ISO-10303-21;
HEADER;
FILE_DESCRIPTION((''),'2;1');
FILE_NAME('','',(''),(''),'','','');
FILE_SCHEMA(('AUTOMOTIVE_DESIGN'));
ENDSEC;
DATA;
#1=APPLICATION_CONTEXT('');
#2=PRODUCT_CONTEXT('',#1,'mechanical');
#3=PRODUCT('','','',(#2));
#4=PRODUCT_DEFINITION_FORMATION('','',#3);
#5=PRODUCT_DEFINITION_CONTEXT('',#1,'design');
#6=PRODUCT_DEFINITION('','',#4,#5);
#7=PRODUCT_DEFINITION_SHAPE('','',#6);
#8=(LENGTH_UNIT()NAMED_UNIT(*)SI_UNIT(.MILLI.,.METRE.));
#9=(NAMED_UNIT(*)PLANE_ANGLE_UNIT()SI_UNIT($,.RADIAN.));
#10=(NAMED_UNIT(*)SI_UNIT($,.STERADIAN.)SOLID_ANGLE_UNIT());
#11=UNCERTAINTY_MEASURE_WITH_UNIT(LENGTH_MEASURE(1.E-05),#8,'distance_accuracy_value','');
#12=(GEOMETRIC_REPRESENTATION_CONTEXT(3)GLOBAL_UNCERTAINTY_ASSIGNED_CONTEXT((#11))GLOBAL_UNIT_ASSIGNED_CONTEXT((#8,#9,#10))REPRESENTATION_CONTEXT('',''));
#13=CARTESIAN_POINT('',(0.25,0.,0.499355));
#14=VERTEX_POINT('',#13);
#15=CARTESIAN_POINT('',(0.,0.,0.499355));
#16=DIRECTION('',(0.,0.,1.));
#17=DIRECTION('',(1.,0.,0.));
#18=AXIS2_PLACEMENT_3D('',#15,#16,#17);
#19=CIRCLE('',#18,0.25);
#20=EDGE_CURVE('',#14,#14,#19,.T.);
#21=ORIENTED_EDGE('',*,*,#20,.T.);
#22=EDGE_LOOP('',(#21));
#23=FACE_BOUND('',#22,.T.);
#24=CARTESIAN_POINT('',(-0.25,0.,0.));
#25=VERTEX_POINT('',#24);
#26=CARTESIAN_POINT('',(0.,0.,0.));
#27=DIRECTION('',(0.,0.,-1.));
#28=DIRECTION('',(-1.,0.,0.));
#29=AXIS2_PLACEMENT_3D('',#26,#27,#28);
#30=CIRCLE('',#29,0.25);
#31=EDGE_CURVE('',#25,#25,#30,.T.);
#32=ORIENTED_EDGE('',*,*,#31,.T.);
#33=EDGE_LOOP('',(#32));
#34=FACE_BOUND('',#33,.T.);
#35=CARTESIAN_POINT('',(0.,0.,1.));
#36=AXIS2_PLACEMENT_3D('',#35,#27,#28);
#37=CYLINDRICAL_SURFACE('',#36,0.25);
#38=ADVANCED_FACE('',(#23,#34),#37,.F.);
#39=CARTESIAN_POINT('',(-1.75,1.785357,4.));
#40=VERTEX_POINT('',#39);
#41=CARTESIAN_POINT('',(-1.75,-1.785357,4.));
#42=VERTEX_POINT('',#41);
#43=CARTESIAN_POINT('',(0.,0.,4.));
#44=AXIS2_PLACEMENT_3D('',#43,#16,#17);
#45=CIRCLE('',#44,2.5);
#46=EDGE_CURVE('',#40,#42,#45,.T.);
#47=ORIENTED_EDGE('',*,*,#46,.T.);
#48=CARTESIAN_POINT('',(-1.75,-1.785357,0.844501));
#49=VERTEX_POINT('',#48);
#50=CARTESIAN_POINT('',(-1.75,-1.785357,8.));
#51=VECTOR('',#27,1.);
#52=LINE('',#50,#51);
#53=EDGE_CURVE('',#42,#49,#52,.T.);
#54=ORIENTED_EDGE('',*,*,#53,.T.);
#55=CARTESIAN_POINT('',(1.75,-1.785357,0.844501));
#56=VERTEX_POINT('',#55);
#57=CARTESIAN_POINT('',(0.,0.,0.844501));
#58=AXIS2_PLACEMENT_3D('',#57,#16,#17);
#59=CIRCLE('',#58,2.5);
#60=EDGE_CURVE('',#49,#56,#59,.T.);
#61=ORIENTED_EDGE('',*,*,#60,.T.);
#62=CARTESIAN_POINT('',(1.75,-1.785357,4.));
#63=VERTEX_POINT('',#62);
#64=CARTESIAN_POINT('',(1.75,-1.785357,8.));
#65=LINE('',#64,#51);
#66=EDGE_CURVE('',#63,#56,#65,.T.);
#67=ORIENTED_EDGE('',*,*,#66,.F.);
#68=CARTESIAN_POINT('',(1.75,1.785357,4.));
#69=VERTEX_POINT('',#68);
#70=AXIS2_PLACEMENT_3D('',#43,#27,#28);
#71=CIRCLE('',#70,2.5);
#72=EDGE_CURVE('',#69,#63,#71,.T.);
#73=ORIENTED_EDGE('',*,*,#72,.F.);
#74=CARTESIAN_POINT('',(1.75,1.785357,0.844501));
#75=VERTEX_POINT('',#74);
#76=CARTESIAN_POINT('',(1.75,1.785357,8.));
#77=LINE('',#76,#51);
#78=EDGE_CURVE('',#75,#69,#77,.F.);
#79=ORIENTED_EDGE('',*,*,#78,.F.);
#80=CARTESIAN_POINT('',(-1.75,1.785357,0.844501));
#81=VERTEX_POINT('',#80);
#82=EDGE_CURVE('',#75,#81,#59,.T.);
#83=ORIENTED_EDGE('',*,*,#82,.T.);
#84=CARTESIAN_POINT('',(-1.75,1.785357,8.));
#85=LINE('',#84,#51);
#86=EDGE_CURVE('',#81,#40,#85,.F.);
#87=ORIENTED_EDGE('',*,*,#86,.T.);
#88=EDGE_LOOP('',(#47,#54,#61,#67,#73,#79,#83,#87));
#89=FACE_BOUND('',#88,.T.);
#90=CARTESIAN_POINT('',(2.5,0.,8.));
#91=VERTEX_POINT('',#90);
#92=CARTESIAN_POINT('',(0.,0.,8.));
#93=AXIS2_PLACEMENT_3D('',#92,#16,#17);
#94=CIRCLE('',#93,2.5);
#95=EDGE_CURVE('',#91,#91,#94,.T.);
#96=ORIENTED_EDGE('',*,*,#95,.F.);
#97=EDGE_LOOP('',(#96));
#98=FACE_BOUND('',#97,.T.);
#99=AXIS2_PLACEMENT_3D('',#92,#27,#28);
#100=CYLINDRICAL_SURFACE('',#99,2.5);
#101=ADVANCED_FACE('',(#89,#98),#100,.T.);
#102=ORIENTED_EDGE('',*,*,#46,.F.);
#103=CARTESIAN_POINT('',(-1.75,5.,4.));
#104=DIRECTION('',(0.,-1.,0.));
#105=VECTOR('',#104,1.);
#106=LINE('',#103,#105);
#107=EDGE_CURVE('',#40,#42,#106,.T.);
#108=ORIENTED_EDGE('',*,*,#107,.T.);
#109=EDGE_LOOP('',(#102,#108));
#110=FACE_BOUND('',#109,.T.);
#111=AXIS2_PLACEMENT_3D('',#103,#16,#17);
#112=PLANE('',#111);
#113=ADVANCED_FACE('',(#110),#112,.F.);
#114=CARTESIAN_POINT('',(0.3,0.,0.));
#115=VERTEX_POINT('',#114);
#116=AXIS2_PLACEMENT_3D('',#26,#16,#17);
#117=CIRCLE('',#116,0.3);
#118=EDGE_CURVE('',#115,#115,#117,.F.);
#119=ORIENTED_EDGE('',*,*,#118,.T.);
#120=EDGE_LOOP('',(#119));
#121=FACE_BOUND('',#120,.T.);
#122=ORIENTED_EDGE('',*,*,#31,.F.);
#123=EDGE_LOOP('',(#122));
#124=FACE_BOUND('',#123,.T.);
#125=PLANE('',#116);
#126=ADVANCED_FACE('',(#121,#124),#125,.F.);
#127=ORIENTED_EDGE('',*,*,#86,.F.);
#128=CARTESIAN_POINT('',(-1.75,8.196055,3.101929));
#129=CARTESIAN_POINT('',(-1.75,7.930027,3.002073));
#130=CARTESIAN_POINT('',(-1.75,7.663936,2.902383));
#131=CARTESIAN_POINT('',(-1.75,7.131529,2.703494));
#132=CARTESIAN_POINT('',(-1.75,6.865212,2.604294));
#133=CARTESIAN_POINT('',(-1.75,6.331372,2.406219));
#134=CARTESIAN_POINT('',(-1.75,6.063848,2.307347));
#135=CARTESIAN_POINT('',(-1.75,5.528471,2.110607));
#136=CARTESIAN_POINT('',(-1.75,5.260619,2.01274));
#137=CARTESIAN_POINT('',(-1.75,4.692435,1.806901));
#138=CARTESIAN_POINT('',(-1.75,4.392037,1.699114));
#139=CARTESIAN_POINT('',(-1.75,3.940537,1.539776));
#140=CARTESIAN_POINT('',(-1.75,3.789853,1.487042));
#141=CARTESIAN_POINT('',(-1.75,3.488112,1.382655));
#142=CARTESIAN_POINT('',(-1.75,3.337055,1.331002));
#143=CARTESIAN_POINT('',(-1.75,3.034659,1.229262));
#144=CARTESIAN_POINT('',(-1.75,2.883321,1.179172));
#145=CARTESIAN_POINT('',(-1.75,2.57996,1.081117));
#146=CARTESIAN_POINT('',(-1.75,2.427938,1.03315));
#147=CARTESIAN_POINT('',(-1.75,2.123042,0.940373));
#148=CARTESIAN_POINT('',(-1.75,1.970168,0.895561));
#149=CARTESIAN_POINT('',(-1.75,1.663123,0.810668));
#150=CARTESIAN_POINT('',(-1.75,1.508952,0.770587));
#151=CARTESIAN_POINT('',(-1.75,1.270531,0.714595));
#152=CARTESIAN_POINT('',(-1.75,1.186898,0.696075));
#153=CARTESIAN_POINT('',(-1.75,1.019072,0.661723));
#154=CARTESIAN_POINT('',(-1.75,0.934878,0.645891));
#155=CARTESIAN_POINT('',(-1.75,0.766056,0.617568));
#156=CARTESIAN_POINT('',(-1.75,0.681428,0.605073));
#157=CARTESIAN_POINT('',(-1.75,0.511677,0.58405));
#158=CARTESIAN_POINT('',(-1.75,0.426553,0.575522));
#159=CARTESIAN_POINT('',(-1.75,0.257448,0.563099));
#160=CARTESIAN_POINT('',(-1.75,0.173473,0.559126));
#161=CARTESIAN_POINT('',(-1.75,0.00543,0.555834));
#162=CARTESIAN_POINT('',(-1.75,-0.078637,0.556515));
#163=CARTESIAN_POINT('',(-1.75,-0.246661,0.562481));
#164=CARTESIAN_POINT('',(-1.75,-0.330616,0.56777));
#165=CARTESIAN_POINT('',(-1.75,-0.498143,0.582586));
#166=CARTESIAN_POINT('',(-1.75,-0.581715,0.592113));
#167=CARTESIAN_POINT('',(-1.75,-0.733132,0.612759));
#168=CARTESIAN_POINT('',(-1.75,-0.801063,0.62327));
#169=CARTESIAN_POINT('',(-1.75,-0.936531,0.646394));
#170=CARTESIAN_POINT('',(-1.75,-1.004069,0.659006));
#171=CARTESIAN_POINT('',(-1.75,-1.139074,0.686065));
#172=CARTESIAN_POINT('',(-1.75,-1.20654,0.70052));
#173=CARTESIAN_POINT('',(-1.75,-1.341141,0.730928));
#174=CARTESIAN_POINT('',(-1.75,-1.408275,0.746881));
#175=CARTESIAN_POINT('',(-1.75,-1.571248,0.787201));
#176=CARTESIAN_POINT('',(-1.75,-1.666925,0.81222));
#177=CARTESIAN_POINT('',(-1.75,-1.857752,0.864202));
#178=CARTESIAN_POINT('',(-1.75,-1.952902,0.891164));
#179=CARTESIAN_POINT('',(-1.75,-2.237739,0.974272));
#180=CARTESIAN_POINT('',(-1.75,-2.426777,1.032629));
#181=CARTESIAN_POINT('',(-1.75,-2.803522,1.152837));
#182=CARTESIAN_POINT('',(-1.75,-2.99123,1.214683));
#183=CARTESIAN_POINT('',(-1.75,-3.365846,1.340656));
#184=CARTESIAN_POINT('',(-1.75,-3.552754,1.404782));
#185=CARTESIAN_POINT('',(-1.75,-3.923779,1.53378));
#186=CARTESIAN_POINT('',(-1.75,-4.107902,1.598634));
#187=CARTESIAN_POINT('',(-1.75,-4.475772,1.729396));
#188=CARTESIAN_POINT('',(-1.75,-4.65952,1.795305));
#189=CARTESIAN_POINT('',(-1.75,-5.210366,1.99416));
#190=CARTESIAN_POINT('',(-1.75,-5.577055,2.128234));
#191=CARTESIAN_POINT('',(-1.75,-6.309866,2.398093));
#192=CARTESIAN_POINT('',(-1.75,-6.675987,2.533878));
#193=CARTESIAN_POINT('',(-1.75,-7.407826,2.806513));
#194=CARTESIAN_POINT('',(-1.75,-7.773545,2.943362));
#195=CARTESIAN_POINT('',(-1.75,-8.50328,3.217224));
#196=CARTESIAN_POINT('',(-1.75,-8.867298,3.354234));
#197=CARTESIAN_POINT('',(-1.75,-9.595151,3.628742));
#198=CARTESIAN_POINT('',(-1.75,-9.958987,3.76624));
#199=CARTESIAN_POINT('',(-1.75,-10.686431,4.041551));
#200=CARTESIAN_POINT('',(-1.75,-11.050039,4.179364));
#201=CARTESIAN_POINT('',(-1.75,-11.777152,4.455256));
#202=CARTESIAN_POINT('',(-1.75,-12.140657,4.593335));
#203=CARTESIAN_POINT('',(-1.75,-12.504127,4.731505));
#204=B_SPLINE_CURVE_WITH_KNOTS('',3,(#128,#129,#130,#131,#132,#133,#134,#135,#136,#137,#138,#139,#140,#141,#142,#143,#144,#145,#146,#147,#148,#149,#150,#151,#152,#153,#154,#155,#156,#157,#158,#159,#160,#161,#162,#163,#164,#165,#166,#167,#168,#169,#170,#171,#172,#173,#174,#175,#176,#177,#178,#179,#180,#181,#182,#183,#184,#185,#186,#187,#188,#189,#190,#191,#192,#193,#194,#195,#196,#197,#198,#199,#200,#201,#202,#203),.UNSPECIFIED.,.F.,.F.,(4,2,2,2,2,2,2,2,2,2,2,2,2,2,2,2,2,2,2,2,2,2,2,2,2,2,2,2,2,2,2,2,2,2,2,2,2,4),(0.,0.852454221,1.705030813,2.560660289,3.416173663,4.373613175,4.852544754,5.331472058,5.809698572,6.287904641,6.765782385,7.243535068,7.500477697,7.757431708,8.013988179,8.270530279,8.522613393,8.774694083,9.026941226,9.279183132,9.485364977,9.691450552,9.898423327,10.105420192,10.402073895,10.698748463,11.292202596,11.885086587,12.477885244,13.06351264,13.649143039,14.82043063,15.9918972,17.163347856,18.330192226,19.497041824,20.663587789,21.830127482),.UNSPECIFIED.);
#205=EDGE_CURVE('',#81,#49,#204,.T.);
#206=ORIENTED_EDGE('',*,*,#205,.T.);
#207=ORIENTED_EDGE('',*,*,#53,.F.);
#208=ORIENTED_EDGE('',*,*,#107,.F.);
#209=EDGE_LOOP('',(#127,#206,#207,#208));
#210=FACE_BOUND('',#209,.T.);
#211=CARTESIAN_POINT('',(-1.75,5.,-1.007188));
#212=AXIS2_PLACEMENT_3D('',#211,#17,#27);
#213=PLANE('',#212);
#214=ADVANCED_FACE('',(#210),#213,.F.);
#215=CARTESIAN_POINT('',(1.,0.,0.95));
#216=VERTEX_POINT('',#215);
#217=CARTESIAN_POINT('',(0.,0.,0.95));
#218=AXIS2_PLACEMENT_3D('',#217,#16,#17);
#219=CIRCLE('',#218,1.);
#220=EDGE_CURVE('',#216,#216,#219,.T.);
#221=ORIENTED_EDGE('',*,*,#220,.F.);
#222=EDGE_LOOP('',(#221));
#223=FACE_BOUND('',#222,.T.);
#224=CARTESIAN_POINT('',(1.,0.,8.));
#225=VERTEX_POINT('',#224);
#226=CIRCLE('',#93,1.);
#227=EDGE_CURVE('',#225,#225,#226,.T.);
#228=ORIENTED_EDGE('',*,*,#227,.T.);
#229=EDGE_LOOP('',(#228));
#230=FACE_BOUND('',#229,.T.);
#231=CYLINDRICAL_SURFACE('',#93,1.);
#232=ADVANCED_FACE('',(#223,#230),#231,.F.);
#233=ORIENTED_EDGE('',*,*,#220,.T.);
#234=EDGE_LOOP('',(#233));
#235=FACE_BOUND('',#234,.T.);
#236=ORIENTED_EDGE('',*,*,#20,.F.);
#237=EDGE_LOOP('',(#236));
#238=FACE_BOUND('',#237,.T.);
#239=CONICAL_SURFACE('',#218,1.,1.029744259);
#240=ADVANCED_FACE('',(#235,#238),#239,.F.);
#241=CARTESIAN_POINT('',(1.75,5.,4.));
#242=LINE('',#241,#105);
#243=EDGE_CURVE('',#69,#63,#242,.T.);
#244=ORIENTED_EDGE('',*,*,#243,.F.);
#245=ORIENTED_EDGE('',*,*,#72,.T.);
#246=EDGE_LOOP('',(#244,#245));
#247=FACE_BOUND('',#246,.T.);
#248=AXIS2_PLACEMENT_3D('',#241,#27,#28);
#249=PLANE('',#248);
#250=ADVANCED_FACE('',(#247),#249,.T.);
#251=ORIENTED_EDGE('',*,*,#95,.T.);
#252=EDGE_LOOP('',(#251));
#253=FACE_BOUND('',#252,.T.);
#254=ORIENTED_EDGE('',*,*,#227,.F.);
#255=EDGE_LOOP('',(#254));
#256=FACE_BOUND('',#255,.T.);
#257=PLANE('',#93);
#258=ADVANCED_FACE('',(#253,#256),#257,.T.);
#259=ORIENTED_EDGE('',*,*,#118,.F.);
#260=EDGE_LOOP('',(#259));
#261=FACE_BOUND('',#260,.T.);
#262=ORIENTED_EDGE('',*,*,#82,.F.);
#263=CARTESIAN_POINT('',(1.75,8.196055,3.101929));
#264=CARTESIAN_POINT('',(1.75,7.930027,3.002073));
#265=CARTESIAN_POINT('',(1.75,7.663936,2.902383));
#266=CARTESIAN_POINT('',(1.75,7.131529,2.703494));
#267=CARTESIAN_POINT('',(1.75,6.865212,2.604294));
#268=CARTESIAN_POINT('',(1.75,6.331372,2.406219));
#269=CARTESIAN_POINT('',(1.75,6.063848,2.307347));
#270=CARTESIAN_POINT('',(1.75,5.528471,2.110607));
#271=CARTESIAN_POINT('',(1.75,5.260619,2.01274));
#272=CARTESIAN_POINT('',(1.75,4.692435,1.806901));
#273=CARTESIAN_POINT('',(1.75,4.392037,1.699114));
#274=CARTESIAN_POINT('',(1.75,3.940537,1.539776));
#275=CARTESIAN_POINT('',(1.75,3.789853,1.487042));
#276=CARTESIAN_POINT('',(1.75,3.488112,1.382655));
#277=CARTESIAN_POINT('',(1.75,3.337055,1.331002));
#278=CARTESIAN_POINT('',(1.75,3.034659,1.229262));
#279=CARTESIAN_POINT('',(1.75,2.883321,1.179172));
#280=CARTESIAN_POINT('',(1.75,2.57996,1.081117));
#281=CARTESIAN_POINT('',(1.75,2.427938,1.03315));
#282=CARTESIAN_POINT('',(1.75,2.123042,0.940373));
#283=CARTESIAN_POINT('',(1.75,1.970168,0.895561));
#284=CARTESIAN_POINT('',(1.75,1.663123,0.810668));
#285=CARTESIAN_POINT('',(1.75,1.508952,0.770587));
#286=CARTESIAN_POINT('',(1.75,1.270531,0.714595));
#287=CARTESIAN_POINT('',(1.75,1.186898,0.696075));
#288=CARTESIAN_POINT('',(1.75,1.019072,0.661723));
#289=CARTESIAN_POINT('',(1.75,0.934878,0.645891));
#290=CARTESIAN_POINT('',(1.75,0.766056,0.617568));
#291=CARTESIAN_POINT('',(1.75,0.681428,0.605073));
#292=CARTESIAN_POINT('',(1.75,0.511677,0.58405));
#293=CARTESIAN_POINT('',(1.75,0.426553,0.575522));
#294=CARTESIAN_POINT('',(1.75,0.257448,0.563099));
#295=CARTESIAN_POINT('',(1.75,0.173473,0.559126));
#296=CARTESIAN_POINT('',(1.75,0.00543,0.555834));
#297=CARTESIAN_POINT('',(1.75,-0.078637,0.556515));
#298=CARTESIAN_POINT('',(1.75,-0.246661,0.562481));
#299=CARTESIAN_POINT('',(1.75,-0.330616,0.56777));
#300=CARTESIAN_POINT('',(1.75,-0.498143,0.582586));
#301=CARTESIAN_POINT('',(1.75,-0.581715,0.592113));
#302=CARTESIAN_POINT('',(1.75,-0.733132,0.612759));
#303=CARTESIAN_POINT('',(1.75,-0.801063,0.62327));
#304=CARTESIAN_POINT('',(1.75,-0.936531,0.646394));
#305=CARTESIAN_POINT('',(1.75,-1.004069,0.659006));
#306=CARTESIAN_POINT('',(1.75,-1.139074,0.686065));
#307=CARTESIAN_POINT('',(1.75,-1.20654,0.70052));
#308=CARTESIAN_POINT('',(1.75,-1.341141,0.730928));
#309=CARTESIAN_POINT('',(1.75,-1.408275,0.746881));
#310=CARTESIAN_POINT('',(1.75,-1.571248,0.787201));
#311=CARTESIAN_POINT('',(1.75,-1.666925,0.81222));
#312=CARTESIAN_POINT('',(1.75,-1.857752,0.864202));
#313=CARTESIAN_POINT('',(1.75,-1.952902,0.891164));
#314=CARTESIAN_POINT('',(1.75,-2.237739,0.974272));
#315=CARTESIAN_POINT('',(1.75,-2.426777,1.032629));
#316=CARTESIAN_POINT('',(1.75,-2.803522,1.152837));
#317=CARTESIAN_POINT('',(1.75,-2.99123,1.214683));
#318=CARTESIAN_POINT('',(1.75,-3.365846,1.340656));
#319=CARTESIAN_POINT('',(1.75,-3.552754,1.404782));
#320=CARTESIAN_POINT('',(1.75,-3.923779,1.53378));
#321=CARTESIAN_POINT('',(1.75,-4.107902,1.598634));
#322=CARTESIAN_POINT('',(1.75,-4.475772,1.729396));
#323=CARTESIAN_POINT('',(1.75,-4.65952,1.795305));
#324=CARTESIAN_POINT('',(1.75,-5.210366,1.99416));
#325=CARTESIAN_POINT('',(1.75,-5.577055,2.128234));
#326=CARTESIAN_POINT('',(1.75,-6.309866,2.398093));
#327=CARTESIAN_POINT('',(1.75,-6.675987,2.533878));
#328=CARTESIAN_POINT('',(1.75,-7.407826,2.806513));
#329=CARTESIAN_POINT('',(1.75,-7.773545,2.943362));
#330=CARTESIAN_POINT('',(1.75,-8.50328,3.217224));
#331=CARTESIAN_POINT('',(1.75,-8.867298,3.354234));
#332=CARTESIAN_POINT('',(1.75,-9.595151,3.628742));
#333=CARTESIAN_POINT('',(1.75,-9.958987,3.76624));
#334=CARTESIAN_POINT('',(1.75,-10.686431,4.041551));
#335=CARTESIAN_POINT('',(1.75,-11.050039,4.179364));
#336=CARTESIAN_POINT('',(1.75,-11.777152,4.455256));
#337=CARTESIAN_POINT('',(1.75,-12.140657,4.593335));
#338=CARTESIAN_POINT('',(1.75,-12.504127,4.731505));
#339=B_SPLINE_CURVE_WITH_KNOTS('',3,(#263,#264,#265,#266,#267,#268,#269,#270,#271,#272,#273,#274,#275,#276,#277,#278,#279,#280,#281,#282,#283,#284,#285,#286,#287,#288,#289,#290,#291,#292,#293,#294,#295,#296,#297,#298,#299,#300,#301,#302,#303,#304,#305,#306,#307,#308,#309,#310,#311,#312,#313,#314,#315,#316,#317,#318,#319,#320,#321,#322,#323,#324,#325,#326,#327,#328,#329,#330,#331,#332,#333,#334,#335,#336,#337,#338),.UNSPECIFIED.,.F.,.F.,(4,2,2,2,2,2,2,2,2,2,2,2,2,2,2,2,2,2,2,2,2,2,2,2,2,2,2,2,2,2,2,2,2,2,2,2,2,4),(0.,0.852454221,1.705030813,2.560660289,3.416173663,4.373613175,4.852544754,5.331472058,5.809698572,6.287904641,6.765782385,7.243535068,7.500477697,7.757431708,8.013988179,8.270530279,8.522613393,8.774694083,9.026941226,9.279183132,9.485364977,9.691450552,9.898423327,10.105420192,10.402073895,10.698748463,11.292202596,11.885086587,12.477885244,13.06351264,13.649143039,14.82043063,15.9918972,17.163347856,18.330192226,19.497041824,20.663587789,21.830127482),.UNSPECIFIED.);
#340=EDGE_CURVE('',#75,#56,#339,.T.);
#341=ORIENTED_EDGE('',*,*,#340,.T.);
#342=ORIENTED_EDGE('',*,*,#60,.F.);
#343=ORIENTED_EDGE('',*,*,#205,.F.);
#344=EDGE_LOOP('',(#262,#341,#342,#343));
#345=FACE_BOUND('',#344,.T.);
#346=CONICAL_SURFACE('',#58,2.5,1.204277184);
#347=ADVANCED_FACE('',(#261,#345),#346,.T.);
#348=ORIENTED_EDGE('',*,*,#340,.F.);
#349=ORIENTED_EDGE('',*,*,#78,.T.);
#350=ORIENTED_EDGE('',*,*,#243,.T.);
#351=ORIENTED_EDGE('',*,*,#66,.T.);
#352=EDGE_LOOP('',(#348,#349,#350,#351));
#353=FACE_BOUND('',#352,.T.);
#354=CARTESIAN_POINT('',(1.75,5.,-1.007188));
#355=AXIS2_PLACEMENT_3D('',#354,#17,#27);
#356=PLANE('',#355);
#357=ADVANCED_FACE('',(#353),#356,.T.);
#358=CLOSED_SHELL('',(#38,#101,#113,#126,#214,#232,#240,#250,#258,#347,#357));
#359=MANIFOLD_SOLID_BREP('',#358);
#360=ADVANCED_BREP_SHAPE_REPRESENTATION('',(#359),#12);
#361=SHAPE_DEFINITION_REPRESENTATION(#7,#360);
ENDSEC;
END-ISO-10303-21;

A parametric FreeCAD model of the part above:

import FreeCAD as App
import Part
import Sketcher


def edges_at(feature, points):
    """Names of the edges that pass closest to the given points."""
    edges = feature.Shape.Edges
    near = lambda p: min(range(len(edges)), key=lambda i: edges[i].distToShape(Part.Vertex(*p))[0])
    return sorted({f"Edge{near(p) + 1}" for p in points})

doc = App.newDocument("Part")
body = doc.addObject("PartDesign::Body", "Body")

sketch1 = body.newObject("Sketcher::SketchObject", "Sketch")
sketch1.AttachmentSupport = (doc.getObject("XY_Plane"), [""])
sketch1.MapMode = "FlatFace"
sketch1.addGeometry(Part.Circle(App.Vector(0, 0, 0), App.Vector(0, 0, 1), 2.5), False)
sketch1.addConstraint(Sketcher.Constraint("Coincident", 0, 3, -1, 1))
sketch1.addConstraint(Sketcher.Constraint("Diameter", 0, 5.0))
pad1 = body.newObject("PartDesign::Pad", "Pad")
pad1.Profile = sketch1
pad1.Length = 8

sketch2 = body.newObject("Sketcher::SketchObject", "Sketch001")
sketch2.AttachmentSupport = (doc.getObject("XY_Plane"), [""])
sketch2.MapMode = "FlatFace"
sketch2.addGeometry(Part.Circle(App.Vector(0, 0, 0), App.Vector(0, 0, 1), 0.25), False)
sketch2.addConstraint(Sketcher.Constraint("Coincident", 0, 3, -1, 1))
sketch2.addConstraint(Sketcher.Constraint("Diameter", 0, 0.5))
pocket1 = body.newObject("PartDesign::Pocket", "Pocket")
pocket1.Profile = sketch2
pocket1.Length = 1
pocket1.Reversed = True
doc.recompute()

chamfer = body.newObject("PartDesign::Chamfer", "Chamfer")
chamfer.Base = (pocket1, edges_at(pocket1, [(-2.5, 0, 0)]))
chamfer.ChamferType = "Two distances"
chamfer.Size = 2.2
chamfer.Size2 = 0.844501
chamfer.FlipDirection = True

sketch3 = body.newObject("Sketcher::SketchObject", "Sketch002")
sketch3.AttachmentSupport = (doc.getObject("XZ_Plane"), [""])
sketch3.MapMode = "FlatFace"
sketch3.addGeometry(Part.LineSegment(App.Vector(1.8, -1, 0), App.Vector(1.8, 4, 0)), False)
sketch3.addGeometry(Part.LineSegment(App.Vector(1.8, 4, 0), App.Vector(3.4, 4, 0)), False)
sketch3.addGeometry(Part.LineSegment(App.Vector(3.4, 4, 0), App.Vector(3.4, -1, 0)), False)
sketch3.addGeometry(Part.LineSegment(App.Vector(3.4, -1, 0), App.Vector(1.8, -1, 0)), False)
sketch3.addConstraint(Sketcher.Constraint("Coincident", 0, 2, 1, 1))
sketch3.addConstraint(Sketcher.Constraint("Coincident", 1, 2, 2, 1))
sketch3.addConstraint(Sketcher.Constraint("Coincident", 2, 2, 3, 1))
sketch3.addConstraint(Sketcher.Constraint("Coincident", 3, 2, 0, 1))
sketch3.addConstraint(Sketcher.Constraint("Vertical", 0))
sketch3.addConstraint(Sketcher.Constraint("Horizontal", 1))
sketch3.addConstraint(Sketcher.Constraint("Vertical", 2))
sketch3.addConstraint(Sketcher.Constraint("Horizontal", 3))
sketch3.addConstraint(Sketcher.Constraint("DistanceY", -1, 1, 0, 2, 4.0))
sketch3.addConstraint(Sketcher.Constraint("DistanceX", -1, 1, 0, 2, 1.75))
sketch3.addConstraint(Sketcher.Constraint("DistanceY", 0, 1, 0, 2, 5.007188))
sketch3.addConstraint(Sketcher.Constraint("DistanceX", 1, 1, 1, 2, 1.688266))
pocket2 = body.newObject("PartDesign::Pocket", "Pocket001")
pocket2.Profile = sketch3
pocket2.Length = 10
pocket2.Midplane = True
doc.recompute()

mirrored = body.newObject("PartDesign::Mirrored", "Mirrored")
mirrored.Originals = [pocket2]
mirrored.MirrorPlane = (doc.getObject("YZ_Plane"), [""])
body.Tip = mirrored

sketch4 = body.newObject("Sketcher::SketchObject", "Sketch003")
sketch4.AttachmentSupport = (doc.getObject("XY_Plane"), [""])
sketch4.MapMode = "FlatFace"
sketch4.AttachmentOffset = App.Placement(App.Vector(0, 0, 8), App.Rotation())
sketch4.addGeometry(Part.Circle(App.Vector(0, 0, 0), App.Vector(0, 0, 1), 1), False)
sketch4.addConstraint(Sketcher.Constraint("Coincident", 0, 3, -1, 1))
sketch4.addConstraint(Sketcher.Constraint("Diameter", 0, 2.0))
doc.recompute()
hole = body.newObject("PartDesign::Hole", "Hole")
hole.Profile = sketch4
hole.ThreadType = "None"
hole.Diameter = 2
hole.DepthType = "Dimension"
hole.Depth = 7.05
hole.DrillPoint = "Angled"
hole.DrillPointAngle = 118

doc.recompute()
